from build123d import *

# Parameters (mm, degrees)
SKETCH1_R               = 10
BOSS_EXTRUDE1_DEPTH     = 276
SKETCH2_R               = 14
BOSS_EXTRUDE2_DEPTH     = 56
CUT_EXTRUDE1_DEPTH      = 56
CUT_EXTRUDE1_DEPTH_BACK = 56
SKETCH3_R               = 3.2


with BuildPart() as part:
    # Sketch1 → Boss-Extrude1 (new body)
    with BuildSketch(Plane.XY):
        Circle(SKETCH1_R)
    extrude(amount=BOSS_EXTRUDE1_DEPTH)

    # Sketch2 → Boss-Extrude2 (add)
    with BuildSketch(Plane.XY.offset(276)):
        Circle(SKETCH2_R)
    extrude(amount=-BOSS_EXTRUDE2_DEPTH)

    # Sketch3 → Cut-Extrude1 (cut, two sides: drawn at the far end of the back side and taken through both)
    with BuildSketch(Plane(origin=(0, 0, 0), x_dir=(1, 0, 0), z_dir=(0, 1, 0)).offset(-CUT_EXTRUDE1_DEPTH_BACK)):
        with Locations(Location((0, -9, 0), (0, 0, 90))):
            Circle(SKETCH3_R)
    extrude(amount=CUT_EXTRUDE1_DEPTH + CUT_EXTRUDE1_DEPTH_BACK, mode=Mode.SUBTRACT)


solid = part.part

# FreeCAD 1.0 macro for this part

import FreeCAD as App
import Part
import Sketcher
Q = App.Units.Quantity

doc = App.newDocument("Part")
body = doc.addObject("PartDesign::Body", "Body")

# Sketch on XY plane
sketch1 = doc.addObject("Sketcher::SketchObject", "Sketch")
body.addObject(sketch1)
sketch1.AttachmentSupport = (doc.XY_Plane, [""])
sketch1.MapMode = "FlatFace"
sketch1.addGeometry(Part.Circle(App.Vector(0, 0, 0), App.Vector(0, 0, 1), 10), False)
sketch1.addConstraint(Sketcher.Constraint("Coincident", 0, 3, -1, 1))
sketch1.addConstraint(Sketcher.Constraint("Diameter", 0, Q("20 mm")))
pad1 = doc.addObject("PartDesign::Pad", "Pad")
body.addObject(pad1)
pad1.Profile = sketch1
pad1.Length = 276

# Sketch on XY plane
sketch2 = doc.addObject("Sketcher::SketchObject", "Sketch001")
body.addObject(sketch2)
sketch2.AttachmentSupport = (doc.XY_Plane, [""])
sketch2.MapMode = "FlatFace"
sketch2.AttachmentOffset = App.Placement(App.Vector(0, 0, 276), App.Rotation())
sketch2.addGeometry(Part.Circle(App.Vector(0, 0, 0), App.Vector(0, 0, 1), 14), False)
sketch2.addConstraint(Sketcher.Constraint("Coincident", 0, 3, -1, 1))
sketch2.addConstraint(Sketcher.Constraint("Diameter", 0, Q("28 mm")))
pad2 = doc.addObject("PartDesign::Pad", "Pad001")
body.addObject(pad2)
pad2.Profile = sketch2
pad2.Length = 56
pad2.Reversed = True

# Sketch on XZ plane
sketch3 = doc.addObject("Sketcher::SketchObject", "Sketch002")
body.addObject(sketch3)
sketch3.AttachmentSupport = (doc.XZ_Plane, [""])
sketch3.MapMode = "FlatFace"
sketch3.addGeometry(Part.Circle(App.Vector(0, 9, 0), App.Vector(0, 0, 1), 3.2), False)
sketch3.addConstraint(Sketcher.Constraint("PointOnObject", 0, 3, -2))
sketch3.addConstraint(Sketcher.Constraint("Diameter", 0, Q("6.4 mm")))
sketch3.addConstraint(Sketcher.Constraint("DistanceY", -1, 1, 0, 3, Q("9 mm")))
pocket1 = doc.addObject("PartDesign::Pocket", "Pocket")
body.addObject(pocket1)
pocket1.Profile = sketch3
pocket1.Type = "ThroughAll"
pocket1.Midplane = True

doc.recompute()
